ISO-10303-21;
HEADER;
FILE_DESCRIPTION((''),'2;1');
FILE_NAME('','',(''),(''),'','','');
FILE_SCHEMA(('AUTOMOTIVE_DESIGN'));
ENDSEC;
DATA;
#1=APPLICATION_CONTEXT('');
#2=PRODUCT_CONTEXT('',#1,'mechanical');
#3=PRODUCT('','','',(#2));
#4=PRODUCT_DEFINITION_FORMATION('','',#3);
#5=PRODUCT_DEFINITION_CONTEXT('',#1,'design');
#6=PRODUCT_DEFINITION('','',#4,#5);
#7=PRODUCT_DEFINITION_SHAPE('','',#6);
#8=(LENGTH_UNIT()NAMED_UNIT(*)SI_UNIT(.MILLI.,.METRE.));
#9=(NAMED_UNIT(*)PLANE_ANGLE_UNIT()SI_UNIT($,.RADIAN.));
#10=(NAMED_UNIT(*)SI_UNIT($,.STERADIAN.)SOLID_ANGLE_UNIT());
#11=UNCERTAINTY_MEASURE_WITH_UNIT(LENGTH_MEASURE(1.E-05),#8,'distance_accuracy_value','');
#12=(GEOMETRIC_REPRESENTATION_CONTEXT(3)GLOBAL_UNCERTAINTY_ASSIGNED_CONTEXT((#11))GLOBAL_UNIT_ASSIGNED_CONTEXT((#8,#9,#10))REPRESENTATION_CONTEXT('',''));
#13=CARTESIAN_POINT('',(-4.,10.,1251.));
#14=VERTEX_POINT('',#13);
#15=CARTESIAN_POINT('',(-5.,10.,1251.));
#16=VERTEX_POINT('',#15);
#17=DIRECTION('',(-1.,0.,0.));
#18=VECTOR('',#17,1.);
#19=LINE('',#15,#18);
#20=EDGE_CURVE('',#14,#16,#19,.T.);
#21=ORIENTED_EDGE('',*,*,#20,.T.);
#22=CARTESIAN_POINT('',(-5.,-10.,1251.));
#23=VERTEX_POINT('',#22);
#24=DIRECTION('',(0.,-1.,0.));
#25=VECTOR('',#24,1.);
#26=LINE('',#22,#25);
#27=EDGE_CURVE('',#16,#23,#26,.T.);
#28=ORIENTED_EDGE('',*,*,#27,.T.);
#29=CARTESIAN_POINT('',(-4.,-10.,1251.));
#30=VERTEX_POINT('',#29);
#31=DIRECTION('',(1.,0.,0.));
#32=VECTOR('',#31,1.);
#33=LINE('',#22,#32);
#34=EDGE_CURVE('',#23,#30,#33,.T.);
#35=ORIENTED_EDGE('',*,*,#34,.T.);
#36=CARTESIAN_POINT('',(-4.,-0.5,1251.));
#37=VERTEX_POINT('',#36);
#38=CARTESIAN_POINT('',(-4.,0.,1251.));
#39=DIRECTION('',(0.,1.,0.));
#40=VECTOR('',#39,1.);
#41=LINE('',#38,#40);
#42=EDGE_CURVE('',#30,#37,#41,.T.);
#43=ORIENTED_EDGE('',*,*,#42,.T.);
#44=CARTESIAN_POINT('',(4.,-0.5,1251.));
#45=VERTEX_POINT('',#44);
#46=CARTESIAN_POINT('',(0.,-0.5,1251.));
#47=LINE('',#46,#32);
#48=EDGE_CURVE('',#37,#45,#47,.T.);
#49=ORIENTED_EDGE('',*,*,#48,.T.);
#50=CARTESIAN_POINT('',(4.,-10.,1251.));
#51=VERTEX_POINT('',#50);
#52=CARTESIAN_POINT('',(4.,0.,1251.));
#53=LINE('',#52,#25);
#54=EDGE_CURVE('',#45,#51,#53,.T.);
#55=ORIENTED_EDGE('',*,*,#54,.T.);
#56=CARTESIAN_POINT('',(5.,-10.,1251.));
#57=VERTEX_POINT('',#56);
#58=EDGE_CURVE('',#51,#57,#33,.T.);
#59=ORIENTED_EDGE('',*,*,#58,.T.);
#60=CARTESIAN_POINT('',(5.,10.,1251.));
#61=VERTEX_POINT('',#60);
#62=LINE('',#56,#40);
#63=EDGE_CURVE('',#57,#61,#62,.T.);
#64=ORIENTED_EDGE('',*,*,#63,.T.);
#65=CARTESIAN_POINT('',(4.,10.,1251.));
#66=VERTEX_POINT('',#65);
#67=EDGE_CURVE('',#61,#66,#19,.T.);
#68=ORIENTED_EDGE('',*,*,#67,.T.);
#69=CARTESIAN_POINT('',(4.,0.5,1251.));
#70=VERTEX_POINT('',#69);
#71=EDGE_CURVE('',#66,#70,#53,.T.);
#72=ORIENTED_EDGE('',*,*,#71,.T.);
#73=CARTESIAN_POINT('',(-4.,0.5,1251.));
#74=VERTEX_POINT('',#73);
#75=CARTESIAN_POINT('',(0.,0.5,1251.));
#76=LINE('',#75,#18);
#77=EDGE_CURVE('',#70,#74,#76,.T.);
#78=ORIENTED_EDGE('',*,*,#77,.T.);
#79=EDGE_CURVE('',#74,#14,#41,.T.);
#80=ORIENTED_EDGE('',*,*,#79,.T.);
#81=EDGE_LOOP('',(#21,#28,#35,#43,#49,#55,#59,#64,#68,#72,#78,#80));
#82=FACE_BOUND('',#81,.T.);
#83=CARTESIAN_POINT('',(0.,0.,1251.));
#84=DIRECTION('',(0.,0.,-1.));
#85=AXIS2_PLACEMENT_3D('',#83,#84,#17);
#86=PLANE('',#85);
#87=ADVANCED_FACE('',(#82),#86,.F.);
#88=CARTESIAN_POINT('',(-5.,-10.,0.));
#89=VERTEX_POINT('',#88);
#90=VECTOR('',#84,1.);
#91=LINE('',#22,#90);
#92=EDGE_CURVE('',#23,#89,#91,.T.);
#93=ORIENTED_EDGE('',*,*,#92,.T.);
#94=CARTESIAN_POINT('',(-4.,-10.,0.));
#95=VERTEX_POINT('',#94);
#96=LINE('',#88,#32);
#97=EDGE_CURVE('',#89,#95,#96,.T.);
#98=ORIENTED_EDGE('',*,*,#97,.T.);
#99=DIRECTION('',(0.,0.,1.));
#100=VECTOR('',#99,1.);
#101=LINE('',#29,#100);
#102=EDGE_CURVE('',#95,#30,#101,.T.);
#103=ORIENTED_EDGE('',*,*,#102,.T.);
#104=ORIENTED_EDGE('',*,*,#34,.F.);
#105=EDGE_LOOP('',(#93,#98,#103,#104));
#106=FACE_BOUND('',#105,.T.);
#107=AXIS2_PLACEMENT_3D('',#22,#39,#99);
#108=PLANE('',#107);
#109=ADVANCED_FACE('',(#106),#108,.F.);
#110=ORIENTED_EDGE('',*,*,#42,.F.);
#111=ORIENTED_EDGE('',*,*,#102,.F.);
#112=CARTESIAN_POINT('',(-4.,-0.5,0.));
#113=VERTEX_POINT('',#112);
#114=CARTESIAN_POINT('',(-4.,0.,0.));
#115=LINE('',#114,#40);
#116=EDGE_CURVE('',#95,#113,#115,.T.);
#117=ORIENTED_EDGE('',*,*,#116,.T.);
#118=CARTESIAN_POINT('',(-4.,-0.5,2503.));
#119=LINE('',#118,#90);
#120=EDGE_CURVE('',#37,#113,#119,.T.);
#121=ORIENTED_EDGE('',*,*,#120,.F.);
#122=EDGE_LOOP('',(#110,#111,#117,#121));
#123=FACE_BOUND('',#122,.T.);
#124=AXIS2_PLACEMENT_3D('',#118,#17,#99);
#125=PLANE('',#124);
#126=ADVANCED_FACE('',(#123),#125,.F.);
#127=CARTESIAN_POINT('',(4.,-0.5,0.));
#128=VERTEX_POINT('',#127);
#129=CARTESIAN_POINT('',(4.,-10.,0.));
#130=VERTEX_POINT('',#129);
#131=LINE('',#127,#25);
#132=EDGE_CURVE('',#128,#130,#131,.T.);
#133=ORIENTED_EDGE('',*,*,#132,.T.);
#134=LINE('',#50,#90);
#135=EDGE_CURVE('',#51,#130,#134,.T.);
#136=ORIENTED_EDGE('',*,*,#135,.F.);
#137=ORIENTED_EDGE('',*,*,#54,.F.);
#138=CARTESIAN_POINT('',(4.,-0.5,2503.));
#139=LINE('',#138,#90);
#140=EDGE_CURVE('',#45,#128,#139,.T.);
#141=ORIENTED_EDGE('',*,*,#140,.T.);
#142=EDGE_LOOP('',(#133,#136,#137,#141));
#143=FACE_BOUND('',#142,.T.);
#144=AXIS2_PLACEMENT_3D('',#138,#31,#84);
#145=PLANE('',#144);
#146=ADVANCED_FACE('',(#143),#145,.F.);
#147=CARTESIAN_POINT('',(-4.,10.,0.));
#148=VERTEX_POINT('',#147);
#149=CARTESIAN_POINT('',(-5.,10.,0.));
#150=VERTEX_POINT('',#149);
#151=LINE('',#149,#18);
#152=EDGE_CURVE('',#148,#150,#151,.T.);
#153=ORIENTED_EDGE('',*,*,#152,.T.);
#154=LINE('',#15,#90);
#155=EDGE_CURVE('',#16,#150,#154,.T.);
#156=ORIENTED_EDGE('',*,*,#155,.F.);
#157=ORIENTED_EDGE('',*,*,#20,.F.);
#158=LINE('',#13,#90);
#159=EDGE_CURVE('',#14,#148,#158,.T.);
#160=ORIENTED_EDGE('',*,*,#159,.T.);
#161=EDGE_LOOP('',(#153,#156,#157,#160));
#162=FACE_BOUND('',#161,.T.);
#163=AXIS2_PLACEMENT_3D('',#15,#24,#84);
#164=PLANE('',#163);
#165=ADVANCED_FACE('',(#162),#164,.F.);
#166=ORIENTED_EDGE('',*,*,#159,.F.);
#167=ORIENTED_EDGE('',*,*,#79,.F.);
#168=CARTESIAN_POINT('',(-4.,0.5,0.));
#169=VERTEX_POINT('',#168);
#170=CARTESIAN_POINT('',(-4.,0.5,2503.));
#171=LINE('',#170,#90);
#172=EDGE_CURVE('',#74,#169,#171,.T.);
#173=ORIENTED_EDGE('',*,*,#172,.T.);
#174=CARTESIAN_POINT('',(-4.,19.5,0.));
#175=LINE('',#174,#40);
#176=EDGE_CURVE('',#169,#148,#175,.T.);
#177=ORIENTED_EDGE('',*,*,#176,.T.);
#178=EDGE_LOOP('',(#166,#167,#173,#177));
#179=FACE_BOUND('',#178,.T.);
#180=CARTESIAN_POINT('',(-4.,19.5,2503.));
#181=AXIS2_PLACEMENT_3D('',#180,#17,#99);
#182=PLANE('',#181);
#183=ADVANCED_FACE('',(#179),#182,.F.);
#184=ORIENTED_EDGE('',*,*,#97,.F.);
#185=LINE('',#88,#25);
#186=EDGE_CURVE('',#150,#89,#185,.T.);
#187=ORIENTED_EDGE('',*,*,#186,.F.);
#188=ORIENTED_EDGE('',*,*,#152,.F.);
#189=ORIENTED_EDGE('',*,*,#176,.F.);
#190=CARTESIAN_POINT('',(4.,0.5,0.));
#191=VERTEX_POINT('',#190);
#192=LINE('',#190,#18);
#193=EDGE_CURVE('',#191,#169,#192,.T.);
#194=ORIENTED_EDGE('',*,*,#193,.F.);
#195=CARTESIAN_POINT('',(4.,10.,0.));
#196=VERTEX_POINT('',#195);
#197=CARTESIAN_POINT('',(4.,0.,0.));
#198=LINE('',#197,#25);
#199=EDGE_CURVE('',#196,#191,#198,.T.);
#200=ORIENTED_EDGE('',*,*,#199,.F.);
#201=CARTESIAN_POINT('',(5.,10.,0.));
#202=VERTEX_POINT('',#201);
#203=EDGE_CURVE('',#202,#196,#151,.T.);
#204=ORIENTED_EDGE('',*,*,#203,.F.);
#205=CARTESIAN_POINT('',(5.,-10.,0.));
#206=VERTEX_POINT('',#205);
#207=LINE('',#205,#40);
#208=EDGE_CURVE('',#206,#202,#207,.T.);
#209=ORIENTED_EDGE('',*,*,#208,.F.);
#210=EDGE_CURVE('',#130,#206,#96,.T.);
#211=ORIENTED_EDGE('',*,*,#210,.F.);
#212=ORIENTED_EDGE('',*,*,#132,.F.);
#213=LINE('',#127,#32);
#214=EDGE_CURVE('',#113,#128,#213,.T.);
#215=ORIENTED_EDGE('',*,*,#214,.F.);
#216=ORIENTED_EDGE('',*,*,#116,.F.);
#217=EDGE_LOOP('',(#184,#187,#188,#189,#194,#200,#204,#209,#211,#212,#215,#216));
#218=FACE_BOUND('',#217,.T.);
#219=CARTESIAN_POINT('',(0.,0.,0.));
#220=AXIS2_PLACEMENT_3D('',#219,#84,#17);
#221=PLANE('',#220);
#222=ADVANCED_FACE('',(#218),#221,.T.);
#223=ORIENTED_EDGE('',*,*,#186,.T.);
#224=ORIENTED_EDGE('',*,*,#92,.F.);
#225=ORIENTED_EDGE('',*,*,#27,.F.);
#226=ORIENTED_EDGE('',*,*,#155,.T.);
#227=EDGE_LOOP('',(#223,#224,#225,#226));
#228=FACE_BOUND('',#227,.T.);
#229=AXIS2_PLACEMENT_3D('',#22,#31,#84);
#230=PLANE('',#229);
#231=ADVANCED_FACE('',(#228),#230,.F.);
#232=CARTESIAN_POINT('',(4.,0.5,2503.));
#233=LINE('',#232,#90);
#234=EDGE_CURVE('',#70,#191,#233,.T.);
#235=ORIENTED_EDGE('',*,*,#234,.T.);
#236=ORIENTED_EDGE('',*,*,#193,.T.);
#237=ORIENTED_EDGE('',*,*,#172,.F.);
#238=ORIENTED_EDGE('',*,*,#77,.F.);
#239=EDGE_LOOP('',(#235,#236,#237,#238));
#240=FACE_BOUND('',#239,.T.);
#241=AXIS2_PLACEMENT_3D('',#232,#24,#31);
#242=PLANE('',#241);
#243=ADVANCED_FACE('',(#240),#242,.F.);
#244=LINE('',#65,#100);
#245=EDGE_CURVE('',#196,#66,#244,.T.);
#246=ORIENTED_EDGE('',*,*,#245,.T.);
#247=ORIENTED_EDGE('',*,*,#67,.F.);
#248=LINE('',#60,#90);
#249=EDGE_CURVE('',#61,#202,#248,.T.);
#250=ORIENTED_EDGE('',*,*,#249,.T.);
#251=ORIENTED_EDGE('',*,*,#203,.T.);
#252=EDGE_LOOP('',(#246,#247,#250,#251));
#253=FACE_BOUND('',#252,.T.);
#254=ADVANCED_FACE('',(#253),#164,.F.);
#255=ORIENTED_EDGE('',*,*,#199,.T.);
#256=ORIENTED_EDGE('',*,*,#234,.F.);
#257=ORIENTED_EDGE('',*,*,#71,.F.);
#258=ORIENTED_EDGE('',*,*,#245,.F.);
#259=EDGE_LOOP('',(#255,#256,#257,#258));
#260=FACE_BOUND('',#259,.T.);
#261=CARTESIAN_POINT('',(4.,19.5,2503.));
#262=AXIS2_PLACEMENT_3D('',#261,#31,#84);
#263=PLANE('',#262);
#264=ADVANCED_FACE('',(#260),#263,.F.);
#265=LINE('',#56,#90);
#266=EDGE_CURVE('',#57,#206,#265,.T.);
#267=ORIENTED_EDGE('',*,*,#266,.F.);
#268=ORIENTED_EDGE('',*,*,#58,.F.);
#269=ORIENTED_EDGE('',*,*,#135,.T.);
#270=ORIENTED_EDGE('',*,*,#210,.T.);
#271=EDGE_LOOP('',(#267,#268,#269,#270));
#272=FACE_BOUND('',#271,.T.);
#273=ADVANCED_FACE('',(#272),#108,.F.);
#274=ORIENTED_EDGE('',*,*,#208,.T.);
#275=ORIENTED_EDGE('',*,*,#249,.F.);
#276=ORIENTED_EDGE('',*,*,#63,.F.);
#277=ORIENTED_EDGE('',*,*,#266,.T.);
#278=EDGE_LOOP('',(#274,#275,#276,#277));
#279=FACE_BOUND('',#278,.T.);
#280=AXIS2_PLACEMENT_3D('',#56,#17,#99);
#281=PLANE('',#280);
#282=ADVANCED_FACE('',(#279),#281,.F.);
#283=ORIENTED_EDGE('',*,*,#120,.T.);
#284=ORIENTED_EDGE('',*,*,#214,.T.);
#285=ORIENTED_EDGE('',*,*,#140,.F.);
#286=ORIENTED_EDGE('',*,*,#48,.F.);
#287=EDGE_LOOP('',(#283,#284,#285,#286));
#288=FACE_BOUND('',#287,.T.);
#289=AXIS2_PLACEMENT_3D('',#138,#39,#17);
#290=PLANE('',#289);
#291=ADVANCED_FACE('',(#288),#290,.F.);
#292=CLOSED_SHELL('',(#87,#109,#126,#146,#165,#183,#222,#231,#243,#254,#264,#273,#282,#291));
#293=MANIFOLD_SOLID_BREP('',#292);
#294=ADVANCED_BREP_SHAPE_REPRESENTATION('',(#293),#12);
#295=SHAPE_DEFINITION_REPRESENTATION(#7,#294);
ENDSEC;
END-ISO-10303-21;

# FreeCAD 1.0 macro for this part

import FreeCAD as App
import Part
import Sketcher

V = App.Vector


def add_polygon(sketch, points):
    """Adds a closed chain of lines whose ends are joined by coincident constraints."""
    first, n = sketch.GeometryCount, len(points)
    for a, b in zip(points, points[1:] + points[:1]):
        sketch.addGeometry(Part.LineSegment(App.Vector(*a, 0), App.Vector(*b, 0)), False)
    for i in range(n):
        sketch.addConstraint(Sketcher.Constraint("Coincident", first + i, 2, first + (i + 1) % n, 1))

doc = App.newDocument("Part")
body = doc.addObject("PartDesign::Body", "Body")

# Sketch on XY plane
sketch1 = body.newObject("Sketcher::SketchObject", "Sketch")
sketch1.AttachmentSupport = (doc.getObject("XY_Plane"), [""])
sketch1.MapMode = "FlatFace"
add_polygon(sketch1, [(-5, 10), (-5, -10), (5, -10), (5, 10)])  # lines 0-3
sketch1.addConstraint([
    Sketcher.Constraint("Vertical", 0),
    Sketcher.Constraint("Horizontal", 1),
    Sketcher.Constraint("Vertical", 2),
    Sketcher.Constraint("Horizontal", 3),
    Sketcher.Constraint("Symmetric", 0, 2, 2, 2, -1, 1),
    Sketcher.Constraint("DistanceX", 1, 1, 1, 2, 10.0),
    Sketcher.Constraint("DistanceY", 0, 2, 0, 1, 20.0),
])
pad1 = body.newObject("PartDesign::Pad", "Pad")
pad1.Profile = sketch1
pad1.Length = 1251

# Sketch on XY plane
sketch2 = body.newObject("Sketcher::SketchObject", "Sketch001")
sketch2.AttachmentSupport = (doc.getObject("XY_Plane"), [""])
sketch2.MapMode = "FlatFace"
add_polygon(sketch2, [(4, 19.5), (4, 0.5), (-4, 0.5), (-4, 19.5)])  # lines 0-3
add_polygon(sketch2, [(4, -0.5), (4, -19.5), (-4, -19.5), (-4, -0.5)])  # lines 4-7
sketch2.addConstraint([
    Sketcher.Constraint("Vertical", 0),
    Sketcher.Constraint("Horizontal", 1),
    Sketcher.Constraint("Vertical", 2),
    Sketcher.Constraint("Horizontal", 3),
    Sketcher.Constraint("Vertical", 4),
    Sketcher.Constraint("Horizontal", 5),
    Sketcher.Constraint("Vertical", 6),
    Sketcher.Constraint("Horizontal", 7),
    Sketcher.Constraint("Symmetric", 2, 2, 4, 2, -1, 1),
    Sketcher.Constraint("Symmetric", 0, 2, 6, 2, -1, 1),
    Sketcher.Constraint("Vertical", 3, 2, 4, 2),
    Sketcher.Constraint("DistanceX", 1, 2, 1, 1, 8.0),
    Sketcher.Constraint("DistanceY", 0, 2, 0, 1, 19.0),
    Sketcher.Constraint("DistanceY", 4, 2, 0, 2, 20.0),
])
pocket1 = body.newObject("PartDesign::Pocket", "Pocket")
pocket1.Profile = sketch2
pocket1.Length = 2503
pocket1.Reversed = True

doc.recompute()
